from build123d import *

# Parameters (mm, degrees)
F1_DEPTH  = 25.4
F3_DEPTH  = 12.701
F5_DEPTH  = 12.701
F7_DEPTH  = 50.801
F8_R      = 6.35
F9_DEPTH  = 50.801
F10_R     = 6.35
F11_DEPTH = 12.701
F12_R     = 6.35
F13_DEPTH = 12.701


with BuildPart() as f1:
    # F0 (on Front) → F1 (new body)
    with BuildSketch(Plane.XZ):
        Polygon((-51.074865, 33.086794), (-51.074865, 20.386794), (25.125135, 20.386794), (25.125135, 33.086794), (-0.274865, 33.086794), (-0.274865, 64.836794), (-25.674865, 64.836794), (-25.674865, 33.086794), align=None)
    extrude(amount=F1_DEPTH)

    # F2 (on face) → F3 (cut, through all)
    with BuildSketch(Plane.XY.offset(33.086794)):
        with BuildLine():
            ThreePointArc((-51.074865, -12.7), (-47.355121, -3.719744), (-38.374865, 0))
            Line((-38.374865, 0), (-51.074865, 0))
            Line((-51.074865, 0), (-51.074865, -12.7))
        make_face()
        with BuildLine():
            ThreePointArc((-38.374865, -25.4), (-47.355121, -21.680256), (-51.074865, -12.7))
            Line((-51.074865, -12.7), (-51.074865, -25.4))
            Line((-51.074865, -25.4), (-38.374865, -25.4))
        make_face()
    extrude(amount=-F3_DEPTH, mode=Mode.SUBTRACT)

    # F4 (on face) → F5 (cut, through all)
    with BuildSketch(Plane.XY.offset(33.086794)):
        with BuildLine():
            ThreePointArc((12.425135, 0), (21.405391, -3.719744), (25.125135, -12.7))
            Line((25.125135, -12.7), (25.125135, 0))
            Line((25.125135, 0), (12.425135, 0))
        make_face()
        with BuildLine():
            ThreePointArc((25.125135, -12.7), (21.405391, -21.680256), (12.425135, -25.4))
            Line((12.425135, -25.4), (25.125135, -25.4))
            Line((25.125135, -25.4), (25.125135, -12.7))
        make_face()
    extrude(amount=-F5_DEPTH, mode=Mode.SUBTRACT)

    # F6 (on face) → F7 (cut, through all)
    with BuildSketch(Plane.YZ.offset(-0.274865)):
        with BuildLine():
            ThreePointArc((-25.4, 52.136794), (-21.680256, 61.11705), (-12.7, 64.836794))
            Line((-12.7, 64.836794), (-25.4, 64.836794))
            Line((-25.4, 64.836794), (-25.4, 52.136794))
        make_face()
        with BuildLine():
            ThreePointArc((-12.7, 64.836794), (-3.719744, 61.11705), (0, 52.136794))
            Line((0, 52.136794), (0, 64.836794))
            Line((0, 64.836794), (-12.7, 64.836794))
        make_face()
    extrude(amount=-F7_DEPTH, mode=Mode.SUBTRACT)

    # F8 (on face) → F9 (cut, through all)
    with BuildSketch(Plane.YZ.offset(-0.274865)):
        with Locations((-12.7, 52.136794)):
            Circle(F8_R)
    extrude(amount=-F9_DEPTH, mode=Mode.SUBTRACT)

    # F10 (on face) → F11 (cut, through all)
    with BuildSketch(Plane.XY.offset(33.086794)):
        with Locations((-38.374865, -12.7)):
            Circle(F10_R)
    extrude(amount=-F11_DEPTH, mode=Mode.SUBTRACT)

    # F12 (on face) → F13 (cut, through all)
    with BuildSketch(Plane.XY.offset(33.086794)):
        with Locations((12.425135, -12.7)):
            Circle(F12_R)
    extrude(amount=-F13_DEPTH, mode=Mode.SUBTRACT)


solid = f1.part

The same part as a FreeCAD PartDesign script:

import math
import FreeCAD as App
import Part
import Sketcher

V = App.Vector
Q = App.Units.Quantity


def add_polygon(sketch, points):
    """Adds a closed chain of lines whose ends are joined by coincident constraints."""
    first, n = sketch.GeometryCount, len(points)
    for a, b in zip(points, points[1:] + points[:1]):
        sketch.addGeometry(Part.LineSegment(App.Vector(*a, 0), App.Vector(*b, 0)), False)
    for i in range(n):
        sketch.addConstraint(Sketcher.Constraint("Coincident", first + i, 2, first + (i + 1) % n, 1))

doc = App.newDocument("Part")
body = doc.addObject("PartDesign::Body", "Body")

# Sketch on XZ plane
sketch1 = body.newObject("Sketcher::SketchObject", "Sketch")
sketch1.AttachmentSupport = (doc.getObject("XZ_Plane"), [""])
sketch1.MapMode = "FlatFace"
add_polygon(sketch1, [(-51, 33), (-51, 20), (25, 20), (25, 33), (0, 33), (0, 65), (-26, 65), (-26, 33)])  # lines 0-7
sketch1.addConstraint([
    Sketcher.Constraint("Vertical", 0),
    Sketcher.Constraint("Horizontal", 1),
    Sketcher.Constraint("Vertical", 2),
    Sketcher.Constraint("Horizontal", 3),
    Sketcher.Constraint("Vertical", 4),
    Sketcher.Constraint("Horizontal", 5),
    Sketcher.Constraint("Vertical", 6),
    Sketcher.Constraint("Horizontal", 7),
    Sketcher.Constraint("Horizontal", 3, 2, 6, 2),
    Sketcher.Constraint("Equal", 3, 5),
    Sketcher.Constraint("Equal", 5, 7),
    Sketcher.Constraint("DistanceX", 1, 1, 1, 2, Q("3 in")),
    Sketcher.Constraint("DistanceY", 0, 2, 0, 1, Q("0.5 in")),
    Sketcher.Constraint("DistanceY", 4, 1, 4, 2, Q("1.25 in")),
    Sketcher.Constraint("DistanceX", 0, 2, -1, 1, Q("51.074865 mm")),
    Sketcher.Constraint("DistanceY", -1, 1, 0, 2, Q("20.386794 mm")),
])
pad1 = body.newObject("PartDesign::Pad", "Pad")
pad1.Profile = sketch1
pad1.Length = Q("1 in")

# Sketch on XY plane
sketch2 = body.newObject("Sketcher::SketchObject", "Sketch001")
sketch2.AttachmentSupport = (doc.getObject("XY_Plane"), [""])
sketch2.MapMode = "FlatFace"
sketch2.AttachmentOffset = App.Placement(V(0, 0, 33.086794), App.Rotation())
sketch2.addGeometry([
    Part.ArcOfCircle(Part.Circle(V(-38, -13, 0), V(0, 0, 1), 13), math.radians(90), math.radians(180)),  # 0
    Part.LineSegment(V(-38, 0, 0), V(-51, 0, 0)),  # 1
    Part.LineSegment(V(-51, 0, 0), V(-51, -13, 0)),  # 2
    Part.ArcOfCircle(Part.Circle(V(-38, -13, 0), V(0, 0, 1), 13), math.radians(-180), math.radians(-90)),  # 3
    Part.LineSegment(V(-51, -13, 0), V(-51, -25, 0)),  # 4
    Part.LineSegment(V(-51, -25, 0), V(-38, -25, 0)),  # 5
], False)
sketch2.addConstraint([
    Sketcher.Constraint("Tangent", 0, 1, 1, 1),
    Sketcher.Constraint("Coincident", 1, 2, 2, 1),
    Sketcher.Constraint("Tangent", 2, 2, 0, 2),
    Sketcher.Constraint("Tangent", 3, 1, 4, 1),
    Sketcher.Constraint("Coincident", 4, 2, 5, 1),
    Sketcher.Constraint("Tangent", 5, 2, 3, 2),
    Sketcher.Constraint("Horizontal", 1),
    Sketcher.Constraint("Vertical", 2),
    Sketcher.Constraint("Vertical", 4),
    Sketcher.Constraint("Horizontal", 5),
    Sketcher.Constraint("Coincident", 3, 3, 0, 3),
    Sketcher.Constraint("Equal", 0, 3),
    Sketcher.Constraint("PointOnObject", 0, 1, -1),
    Sketcher.Constraint("Radius", 0, Q("0.5 in")),
    Sketcher.Constraint("DistanceX", 0, 3, -1, 1, Q("38.374865 mm")),
])
pocket1 = body.newObject("PartDesign::Pocket", "Pocket")
pocket1.Profile = sketch2
pocket1.Type = "ThroughAll"

# Sketch on XY plane
sketch3 = body.newObject("Sketcher::SketchObject", "Sketch002")
sketch3.AttachmentSupport = (doc.getObject("XY_Plane"), [""])
sketch3.MapMode = "FlatFace"
sketch3.AttachmentOffset = App.Placement(V(0, 0, 33.086794), App.Rotation())
sketch3.addGeometry([
    Part.ArcOfCircle(Part.Circle(V(12, -13, 0), V(0, 0, 1), 13), math.radians(0), math.radians(90)),  # 0
    Part.LineSegment(V(25, -13, 0), V(25, 0, 0)),  # 1
    Part.LineSegment(V(25, 0, 0), V(12, 0, 0)),  # 2
    Part.ArcOfCircle(Part.Circle(V(12, -13, 0), V(0, 0, 1), 13), math.radians(-90), math.radians(0)),  # 3
    Part.LineSegment(V(12, -25, 0), V(25, -25, 0)),  # 4
    Part.LineSegment(V(25, -25, 0), V(25, -13, 0)),  # 5
], False)
sketch3.addConstraint([
    Sketcher.Constraint("Tangent", 0, 1, 1, 1),
    Sketcher.Constraint("Coincident", 1, 2, 2, 1),
    Sketcher.Constraint("Tangent", 2, 2, 0, 2),
    Sketcher.Constraint("Tangent", 3, 1, 4, 1),
    Sketcher.Constraint("Coincident", 4, 2, 5, 1),
    Sketcher.Constraint("Tangent", 5, 2, 3, 2),
    Sketcher.Constraint("Vertical", 1),
    Sketcher.Constraint("Horizontal", 2),
    Sketcher.Constraint("Horizontal", 4),
    Sketcher.Constraint("Vertical", 5),
    Sketcher.Constraint("Coincident", 3, 3, 0, 3),
    Sketcher.Constraint("Equal", 0, 3),
    Sketcher.Constraint("PointOnObject", 1, 2, -1),
    Sketcher.Constraint("Radius", 0, Q("0.5 in")),
    Sketcher.Constraint("DistanceX", -1, 1, 0, 3, Q("12.425135 mm")),
])
pocket2 = body.newObject("PartDesign::Pocket", "Pocket001")
pocket2.Profile = sketch3
pocket2.Type = "ThroughAll"

# Sketch on YZ plane
sketch4 = body.newObject("Sketcher::SketchObject", "Sketch003")
sketch4.AttachmentSupport = (doc.getObject("YZ_Plane"), [""])
sketch4.MapMode = "FlatFace"
sketch4.AttachmentOffset = App.Placement(V(0, 0, -0.274865), App.Rotation())
sketch4.addGeometry([
    Part.ArcOfCircle(Part.Circle(V(-13, 52, 0), V(0, 0, 1), 13), math.radians(90), math.radians(180)),  # 0
    Part.LineSegment(V(-13, 65, 0), V(-25, 65, 0)),  # 1
    Part.LineSegment(V(-25, 65, 0), V(-25, 52, 0)),  # 2
    Part.ArcOfCircle(Part.Circle(V(-13, 52, 0), V(0, 0, 1), 13), math.radians(0), math.radians(90)),  # 3
    Part.LineSegment(V(0, 52, 0), V(0, 65, 0)),  # 4
    Part.LineSegment(V(0, 65, 0), V(-13, 65, 0)),  # 5
], False)
sketch4.addConstraint([
    Sketcher.Constraint("Tangent", 0, 1, 1, 1),
    Sketcher.Constraint("Coincident", 1, 2, 2, 1),
    Sketcher.Constraint("Tangent", 2, 2, 0, 2),
    Sketcher.Constraint("Tangent", 3, 1, 4, 1),
    Sketcher.Constraint("Coincident", 4, 2, 5, 1),
    Sketcher.Constraint("Tangent", 5, 2, 3, 2),
    Sketcher.Constraint("Horizontal", 1),
    Sketcher.Constraint("Vertical", 2),
    Sketcher.Constraint("Vertical", 4),
    Sketcher.Constraint("Horizontal", 5),
    Sketcher.Constraint("Coincident", 3, 3, 0, 3),
    Sketcher.Constraint("Equal", 0, 3),
    Sketcher.Constraint("PointOnObject", 3, 1, -2),
    Sketcher.Constraint("Radius", 0, Q("0.5 in")),
    Sketcher.Constraint("DistanceY", -1, 1, 0, 3, Q("52.136794 mm")),
])
pocket3 = body.newObject("PartDesign::Pocket", "Pocket002")
pocket3.Profile = sketch4
pocket3.Type = "ThroughAll"

# Sketch on YZ plane
sketch5 = body.newObject("Sketcher::SketchObject", "Sketch004")
sketch5.AttachmentSupport = (doc.getObject("YZ_Plane"), [""])
sketch5.MapMode = "FlatFace"
sketch5.AttachmentOffset = App.Placement(V(0, 0, -0.274865), App.Rotation())
sketch5.addGeometry(Part.Circle(V(-13, 52, 0), V(0, 0, 1), 6), False)
sketch5.addConstraint([
    Sketcher.Constraint("Diameter", 0, Q("0.5 in")),
    Sketcher.Constraint("DistanceX", 0, 3, -1, 1, Q("0.5 in")),
    Sketcher.Constraint("DistanceY", -1, 1, 0, 3, Q("52.136794 mm")),
])
pocket4 = body.newObject("PartDesign::Pocket", "Pocket003")
pocket4.Profile = sketch5
pocket4.Type = "ThroughAll"

# Sketch on XY plane
sketch6 = body.newObject("Sketcher::SketchObject", "Sketch005")
sketch6.AttachmentSupport = (doc.getObject("XY_Plane"), [""])
sketch6.MapMode = "FlatFace"
sketch6.AttachmentOffset = App.Placement(V(0, 0, 33.086794), App.Rotation())
sketch6.addGeometry(Part.Circle(V(-38, -13, 0), V(0, 0, 1), 6), False)
sketch6.addConstraint([
    Sketcher.Constraint("Diameter", 0, Q("0.5 in")),
    Sketcher.Constraint("DistanceY", 0, 3, -1, 1, Q("0.5 in")),
    Sketcher.Constraint("DistanceX", 0, 3, -1, 1, Q("38.374865 mm")),
])
pocket5 = body.newObject("PartDesign::Pocket", "Pocket004")
pocket5.Profile = sketch6
pocket5.Type = "ThroughAll"

# Sketch on XY plane
sketch7 = body.newObject("Sketcher::SketchObject", "Sketch006")
sketch7.AttachmentSupport = (doc.getObject("XY_Plane"), [""])
sketch7.MapMode = "FlatFace"
sketch7.AttachmentOffset = App.Placement(V(0, 0, 33.086794), App.Rotation())
sketch7.addGeometry(Part.Circle(V(12, -13, 0), V(0, 0, 1), 6), False)
sketch7.addConstraint([
    Sketcher.Constraint("Diameter", 0, Q("0.5 in")),
    Sketcher.Constraint("DistanceY", 0, 3, -1, 1, Q("0.5 in")),
    Sketcher.Constraint("DistanceX", -1, 1, 0, 3, Q("12.425135 mm")),
])
pocket6 = body.newObject("PartDesign::Pocket", "Pocket005")
pocket6.Profile = sketch7
pocket6.Type = "ThroughAll"

doc.recompute()
